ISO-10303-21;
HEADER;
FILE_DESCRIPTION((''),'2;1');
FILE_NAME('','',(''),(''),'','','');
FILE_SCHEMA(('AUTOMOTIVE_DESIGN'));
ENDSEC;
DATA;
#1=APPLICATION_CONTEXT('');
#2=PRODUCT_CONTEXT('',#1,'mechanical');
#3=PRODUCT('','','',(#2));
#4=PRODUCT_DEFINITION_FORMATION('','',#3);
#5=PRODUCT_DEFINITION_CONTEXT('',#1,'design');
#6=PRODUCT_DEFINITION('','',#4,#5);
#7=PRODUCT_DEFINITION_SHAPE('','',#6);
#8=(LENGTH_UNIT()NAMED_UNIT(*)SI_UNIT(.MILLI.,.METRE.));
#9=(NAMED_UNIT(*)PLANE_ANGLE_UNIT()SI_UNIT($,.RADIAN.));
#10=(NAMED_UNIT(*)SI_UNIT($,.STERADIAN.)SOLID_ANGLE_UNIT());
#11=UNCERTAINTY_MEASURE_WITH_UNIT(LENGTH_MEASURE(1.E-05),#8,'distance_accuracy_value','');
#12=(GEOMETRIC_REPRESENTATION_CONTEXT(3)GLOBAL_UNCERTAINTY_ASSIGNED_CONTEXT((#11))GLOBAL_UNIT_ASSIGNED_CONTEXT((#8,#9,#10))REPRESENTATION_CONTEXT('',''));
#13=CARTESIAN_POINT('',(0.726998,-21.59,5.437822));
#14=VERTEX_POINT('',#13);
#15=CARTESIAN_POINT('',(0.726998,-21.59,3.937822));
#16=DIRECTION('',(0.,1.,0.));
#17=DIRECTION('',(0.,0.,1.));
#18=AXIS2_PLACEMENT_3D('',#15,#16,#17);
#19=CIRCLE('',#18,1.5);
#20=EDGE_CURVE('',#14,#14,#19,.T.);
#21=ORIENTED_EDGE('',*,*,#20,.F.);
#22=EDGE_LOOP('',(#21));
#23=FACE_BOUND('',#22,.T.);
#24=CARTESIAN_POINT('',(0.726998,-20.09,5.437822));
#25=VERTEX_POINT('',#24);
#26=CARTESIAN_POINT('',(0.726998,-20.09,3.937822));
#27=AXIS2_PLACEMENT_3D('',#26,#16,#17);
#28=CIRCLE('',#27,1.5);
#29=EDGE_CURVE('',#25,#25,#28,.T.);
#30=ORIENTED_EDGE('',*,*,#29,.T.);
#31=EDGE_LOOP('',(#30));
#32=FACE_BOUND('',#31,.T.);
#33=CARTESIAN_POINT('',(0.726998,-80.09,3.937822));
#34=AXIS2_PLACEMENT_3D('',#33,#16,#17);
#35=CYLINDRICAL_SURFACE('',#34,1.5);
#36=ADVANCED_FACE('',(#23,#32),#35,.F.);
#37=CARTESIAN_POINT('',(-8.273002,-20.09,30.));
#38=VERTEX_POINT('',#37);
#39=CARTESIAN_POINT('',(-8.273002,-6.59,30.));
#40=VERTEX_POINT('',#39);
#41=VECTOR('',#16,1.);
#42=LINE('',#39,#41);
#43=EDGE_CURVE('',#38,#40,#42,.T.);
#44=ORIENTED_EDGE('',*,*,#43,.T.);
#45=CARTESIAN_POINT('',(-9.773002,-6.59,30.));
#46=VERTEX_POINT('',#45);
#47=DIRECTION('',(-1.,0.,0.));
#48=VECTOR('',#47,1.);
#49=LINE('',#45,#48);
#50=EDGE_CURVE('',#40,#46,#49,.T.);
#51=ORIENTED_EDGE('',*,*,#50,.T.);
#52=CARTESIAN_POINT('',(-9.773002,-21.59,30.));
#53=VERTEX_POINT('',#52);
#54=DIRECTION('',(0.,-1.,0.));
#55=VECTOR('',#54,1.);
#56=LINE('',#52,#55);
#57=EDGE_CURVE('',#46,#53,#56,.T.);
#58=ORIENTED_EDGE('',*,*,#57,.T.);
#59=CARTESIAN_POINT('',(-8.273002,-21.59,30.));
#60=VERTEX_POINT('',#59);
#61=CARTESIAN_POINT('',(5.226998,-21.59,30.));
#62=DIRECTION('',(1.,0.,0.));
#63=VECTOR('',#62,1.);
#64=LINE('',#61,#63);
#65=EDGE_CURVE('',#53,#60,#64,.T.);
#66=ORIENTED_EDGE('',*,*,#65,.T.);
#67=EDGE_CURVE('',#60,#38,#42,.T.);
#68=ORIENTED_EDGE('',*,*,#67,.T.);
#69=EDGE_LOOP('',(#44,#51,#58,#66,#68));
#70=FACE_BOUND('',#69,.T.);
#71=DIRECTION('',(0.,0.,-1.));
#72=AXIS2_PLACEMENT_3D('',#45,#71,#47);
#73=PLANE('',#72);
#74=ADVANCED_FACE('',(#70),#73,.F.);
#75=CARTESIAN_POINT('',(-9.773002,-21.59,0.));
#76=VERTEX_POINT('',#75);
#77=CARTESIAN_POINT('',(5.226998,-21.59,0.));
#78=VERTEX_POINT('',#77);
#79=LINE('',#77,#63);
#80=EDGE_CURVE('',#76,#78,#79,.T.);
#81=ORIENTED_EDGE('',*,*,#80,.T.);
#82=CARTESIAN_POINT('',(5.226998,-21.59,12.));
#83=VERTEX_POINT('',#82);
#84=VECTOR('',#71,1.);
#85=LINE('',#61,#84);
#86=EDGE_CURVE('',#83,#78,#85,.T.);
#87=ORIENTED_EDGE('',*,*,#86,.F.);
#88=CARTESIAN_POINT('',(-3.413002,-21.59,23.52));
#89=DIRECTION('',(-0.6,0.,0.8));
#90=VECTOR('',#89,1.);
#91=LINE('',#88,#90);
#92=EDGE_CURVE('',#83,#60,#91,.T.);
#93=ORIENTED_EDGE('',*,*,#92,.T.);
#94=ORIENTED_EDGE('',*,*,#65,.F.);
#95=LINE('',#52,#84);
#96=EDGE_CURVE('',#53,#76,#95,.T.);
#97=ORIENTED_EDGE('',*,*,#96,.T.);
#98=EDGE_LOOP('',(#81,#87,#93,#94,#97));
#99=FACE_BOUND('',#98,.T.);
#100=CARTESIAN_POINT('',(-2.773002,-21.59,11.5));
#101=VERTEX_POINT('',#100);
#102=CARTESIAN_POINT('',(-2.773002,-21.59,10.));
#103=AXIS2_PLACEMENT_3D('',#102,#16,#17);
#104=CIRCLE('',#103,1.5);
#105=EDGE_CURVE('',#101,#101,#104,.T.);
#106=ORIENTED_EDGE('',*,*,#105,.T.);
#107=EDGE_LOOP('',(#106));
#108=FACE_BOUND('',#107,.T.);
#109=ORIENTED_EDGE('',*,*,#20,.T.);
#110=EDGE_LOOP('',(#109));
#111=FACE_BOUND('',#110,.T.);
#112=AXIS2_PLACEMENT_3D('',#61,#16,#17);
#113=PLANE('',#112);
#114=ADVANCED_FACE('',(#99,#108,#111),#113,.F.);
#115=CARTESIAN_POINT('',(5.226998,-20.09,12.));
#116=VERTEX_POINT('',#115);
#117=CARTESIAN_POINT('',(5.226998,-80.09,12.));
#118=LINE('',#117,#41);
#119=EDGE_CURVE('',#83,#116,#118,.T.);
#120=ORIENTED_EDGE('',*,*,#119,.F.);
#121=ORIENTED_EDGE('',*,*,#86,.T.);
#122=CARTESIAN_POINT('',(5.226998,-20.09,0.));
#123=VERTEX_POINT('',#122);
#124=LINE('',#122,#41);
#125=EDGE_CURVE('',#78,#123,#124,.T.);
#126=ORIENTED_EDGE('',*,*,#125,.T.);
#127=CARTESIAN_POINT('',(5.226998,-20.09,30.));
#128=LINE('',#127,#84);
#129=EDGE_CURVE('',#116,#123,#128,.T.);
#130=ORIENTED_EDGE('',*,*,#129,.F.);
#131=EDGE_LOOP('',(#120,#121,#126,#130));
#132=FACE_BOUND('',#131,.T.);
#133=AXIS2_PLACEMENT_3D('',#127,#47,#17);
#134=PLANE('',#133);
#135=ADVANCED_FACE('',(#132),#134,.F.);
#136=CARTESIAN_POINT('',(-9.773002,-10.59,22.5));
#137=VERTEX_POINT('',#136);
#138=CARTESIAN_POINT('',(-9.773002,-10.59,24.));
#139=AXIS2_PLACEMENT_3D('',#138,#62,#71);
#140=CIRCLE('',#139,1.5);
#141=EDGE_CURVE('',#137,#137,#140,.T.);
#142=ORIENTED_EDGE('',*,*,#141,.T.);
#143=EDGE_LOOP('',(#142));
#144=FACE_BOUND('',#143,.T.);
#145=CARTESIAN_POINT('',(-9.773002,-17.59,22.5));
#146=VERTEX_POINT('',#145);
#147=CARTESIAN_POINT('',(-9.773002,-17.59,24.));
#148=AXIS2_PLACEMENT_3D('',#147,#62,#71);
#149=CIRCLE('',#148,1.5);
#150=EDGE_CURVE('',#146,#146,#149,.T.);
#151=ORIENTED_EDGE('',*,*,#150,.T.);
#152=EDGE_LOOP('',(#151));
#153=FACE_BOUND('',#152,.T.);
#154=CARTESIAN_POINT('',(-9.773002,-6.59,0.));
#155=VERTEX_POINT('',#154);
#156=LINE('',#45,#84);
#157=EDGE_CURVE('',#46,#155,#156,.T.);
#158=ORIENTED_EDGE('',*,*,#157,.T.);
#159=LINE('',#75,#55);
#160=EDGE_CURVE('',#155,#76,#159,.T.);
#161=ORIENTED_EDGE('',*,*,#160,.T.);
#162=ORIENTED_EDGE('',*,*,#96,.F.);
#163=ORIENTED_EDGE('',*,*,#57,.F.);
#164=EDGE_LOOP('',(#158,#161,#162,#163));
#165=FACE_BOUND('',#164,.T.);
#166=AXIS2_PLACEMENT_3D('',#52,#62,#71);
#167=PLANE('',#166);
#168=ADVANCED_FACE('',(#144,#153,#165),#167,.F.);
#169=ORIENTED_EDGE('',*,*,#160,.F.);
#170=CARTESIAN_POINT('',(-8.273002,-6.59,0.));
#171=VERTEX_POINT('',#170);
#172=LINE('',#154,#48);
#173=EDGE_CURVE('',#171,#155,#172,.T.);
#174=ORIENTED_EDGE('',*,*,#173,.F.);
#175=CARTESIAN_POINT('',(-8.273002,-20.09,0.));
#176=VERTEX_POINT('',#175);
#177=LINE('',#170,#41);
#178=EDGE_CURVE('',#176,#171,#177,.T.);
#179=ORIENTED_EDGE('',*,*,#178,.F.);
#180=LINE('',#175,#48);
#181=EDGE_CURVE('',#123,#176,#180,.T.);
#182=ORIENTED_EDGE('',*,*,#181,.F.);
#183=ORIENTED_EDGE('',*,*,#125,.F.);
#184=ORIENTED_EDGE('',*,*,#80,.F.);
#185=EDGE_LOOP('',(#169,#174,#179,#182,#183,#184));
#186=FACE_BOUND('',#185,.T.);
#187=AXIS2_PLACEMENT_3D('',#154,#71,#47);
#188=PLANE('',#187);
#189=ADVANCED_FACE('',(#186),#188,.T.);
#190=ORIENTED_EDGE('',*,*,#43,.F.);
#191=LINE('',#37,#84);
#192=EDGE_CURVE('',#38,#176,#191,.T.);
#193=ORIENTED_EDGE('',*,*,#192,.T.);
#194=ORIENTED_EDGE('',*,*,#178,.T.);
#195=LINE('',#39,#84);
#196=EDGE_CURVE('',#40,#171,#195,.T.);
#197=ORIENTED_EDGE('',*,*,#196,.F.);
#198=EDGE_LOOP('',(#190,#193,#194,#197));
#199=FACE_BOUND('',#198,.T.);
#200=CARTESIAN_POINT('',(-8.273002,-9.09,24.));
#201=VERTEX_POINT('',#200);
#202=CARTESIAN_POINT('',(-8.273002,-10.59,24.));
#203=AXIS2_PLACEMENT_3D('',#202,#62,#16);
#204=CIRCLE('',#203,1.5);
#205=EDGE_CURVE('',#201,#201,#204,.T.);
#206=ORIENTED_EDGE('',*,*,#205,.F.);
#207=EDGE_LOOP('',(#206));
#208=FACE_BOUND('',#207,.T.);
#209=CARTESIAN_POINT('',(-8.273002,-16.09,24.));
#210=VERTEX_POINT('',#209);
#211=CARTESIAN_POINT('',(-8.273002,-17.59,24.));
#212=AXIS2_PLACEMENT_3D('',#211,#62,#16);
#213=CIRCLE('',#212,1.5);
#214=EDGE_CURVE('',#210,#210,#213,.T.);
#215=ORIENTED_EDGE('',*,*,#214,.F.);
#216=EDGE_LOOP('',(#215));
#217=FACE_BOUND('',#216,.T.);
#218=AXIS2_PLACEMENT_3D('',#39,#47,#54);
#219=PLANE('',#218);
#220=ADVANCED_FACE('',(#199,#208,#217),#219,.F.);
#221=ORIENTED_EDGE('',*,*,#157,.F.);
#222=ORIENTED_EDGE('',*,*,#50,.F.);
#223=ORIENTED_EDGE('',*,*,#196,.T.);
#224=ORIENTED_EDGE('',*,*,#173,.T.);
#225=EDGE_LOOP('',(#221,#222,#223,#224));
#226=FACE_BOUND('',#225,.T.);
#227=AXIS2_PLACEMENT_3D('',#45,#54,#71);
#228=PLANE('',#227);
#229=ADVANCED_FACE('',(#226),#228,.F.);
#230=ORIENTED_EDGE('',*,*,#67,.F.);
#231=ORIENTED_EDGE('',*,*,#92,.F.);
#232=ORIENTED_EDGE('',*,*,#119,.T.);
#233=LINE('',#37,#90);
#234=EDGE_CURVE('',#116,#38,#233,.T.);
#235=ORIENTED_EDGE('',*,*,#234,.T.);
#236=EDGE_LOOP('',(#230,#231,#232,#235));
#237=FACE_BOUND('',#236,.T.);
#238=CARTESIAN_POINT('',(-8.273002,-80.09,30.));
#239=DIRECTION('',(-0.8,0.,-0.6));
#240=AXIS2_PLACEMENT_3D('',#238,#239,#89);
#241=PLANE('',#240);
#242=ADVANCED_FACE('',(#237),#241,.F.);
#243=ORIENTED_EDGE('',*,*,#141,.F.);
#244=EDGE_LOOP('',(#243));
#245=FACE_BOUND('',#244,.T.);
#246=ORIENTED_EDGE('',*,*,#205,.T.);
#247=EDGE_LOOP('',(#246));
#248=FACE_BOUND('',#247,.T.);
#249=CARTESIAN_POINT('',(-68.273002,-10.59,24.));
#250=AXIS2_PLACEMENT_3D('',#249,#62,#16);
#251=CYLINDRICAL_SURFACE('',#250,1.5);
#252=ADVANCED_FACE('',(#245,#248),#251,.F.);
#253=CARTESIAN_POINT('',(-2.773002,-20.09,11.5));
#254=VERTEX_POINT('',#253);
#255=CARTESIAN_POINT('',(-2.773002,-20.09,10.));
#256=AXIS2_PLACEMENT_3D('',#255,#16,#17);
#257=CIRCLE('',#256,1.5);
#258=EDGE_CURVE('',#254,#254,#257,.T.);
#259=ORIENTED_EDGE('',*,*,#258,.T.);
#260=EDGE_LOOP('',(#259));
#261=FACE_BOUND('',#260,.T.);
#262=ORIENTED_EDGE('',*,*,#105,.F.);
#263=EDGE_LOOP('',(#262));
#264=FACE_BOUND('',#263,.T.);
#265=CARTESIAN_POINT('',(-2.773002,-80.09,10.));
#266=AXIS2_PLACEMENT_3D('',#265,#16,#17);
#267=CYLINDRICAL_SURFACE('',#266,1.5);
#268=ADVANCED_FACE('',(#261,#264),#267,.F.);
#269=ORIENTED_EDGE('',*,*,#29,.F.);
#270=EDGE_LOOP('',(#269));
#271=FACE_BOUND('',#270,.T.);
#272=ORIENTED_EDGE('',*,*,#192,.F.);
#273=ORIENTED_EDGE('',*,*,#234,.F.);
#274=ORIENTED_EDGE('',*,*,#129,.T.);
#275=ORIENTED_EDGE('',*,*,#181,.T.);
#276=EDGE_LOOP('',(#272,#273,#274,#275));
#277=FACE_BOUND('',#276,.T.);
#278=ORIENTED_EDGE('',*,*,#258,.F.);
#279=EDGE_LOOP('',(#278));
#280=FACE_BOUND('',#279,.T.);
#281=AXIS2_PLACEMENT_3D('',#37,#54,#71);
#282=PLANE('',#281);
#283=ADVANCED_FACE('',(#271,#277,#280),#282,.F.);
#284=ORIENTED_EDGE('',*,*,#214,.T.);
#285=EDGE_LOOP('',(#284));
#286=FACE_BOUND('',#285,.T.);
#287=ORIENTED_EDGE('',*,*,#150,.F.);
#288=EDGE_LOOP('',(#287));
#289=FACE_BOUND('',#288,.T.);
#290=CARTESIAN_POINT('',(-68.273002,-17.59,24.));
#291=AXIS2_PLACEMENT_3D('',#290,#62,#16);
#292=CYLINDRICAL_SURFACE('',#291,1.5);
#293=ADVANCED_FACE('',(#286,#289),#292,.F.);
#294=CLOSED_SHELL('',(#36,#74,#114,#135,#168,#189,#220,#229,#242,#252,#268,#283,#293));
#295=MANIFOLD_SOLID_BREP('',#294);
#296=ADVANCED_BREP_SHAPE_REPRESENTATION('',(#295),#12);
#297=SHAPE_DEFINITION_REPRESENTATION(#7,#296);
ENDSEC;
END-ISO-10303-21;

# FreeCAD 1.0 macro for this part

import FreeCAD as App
import Part
import Sketcher


def add_polygon(sketch, points):
    """Adds a closed chain of lines whose ends are joined by coincident constraints."""
    first, n = sketch.GeometryCount, len(points)
    for a, b in zip(points, points[1:] + points[:1]):
        sketch.addGeometry(Part.LineSegment(App.Vector(*a, 0), App.Vector(*b, 0)), False)
    for i in range(n):
        sketch.addConstraint(Sketcher.Constraint("Coincident", first + i, 2, first + (i + 1) % n, 1))

doc = App.newDocument("Part")
params = doc.addObject("Spreadsheet::Sheet", "Params")
for row, (alias, value) in enumerate([
    ("sketch1_width", "15 mm"),
    ("sketch1_width2", "1.5 mm"),
    ("pad1_length", "30 mm"),
    ("sketch2_diameter", "3 mm"),
    ("pocket1_length", "60 mm"),
    ("sketch3_diameter", "3 mm"),
    ("sketch3_height", "18 mm"),
    ("sketch3_width", "13.5 mm"),
    ("pocket2_length", "60 mm"),
], start=1):
    params.set(f"A{row}", alias)
    params.set(f"B{row}", "=" + value)
    params.setAlias(f"B{row}", alias)

body = doc.addObject("PartDesign::Body", "Body")

# Sketch on XY plane
sketch1 = body.newObject("Sketcher::SketchObject", "Sketch")
sketch1.AttachmentSupport = (doc.getObject("XY_Plane"), [""])
sketch1.MapMode = "FlatFace"
add_polygon(sketch1, [(-8.3, -6.6), (-9.8, -6.6), (-9.8, -21.6), (5.2, -21.6), (5.2, -20.1), (-8.3, -20.1)])  # lines 0-5
sketch1.addConstraint([
    Sketcher.Constraint("Horizontal", 0),
    Sketcher.Constraint("Vertical", 1),
    Sketcher.Constraint("Horizontal", 2),
    Sketcher.Constraint("Vertical", 3),
    Sketcher.Constraint("Horizontal", 4),
    Sketcher.Constraint("Vertical", 5),
    Sketcher.Constraint("Equal", 2, 1),
    Sketcher.Constraint("Equal", 0, 3),
    Sketcher.Constraint("DistanceX", 2, 1, 2, 2, 15.0),
    Sketcher.Constraint("DistanceX", 0, 2, 0, 1, 1.5),
    Sketcher.Constraint("DistanceY", 0, 2, -1, 1, 6.59),
    Sketcher.Constraint("DistanceX", 0, 2, -1, 1, 9.773002),
])
sketch1.setExpression("Constraints[14]", "Params.sketch1_width")
sketch1.setExpression("Constraints[15]", "Params.sketch1_width2")
pad1 = body.newObject("PartDesign::Pad", "Pad")
pad1.Profile = sketch1
pad1.setExpression("Length", "Params.pad1_length")

# Sketch on YZ plane
sketch2 = body.newObject("Sketcher::SketchObject", "Sketch001")
sketch2.AttachmentSupport = (doc.getObject("YZ_Plane"), [""])
sketch2.MapMode = "FlatFace"
sketch2.AttachmentOffset = App.Placement(App.Vector(0, 0, -8.273002), App.Rotation())
sketch2.addGeometry([
    Part.Circle(App.Vector(-10.6, 24, 0), App.Vector(0, 0, 1), 1.5),
    Part.Circle(App.Vector(-17.6, 24, 0), App.Vector(0, 0, 1), 1.5),
], False)
sketch2.addConstraint([
    Sketcher.Constraint("Equal", 0, 1),
    Sketcher.Constraint("Horizontal", 0, 3, 1, 3),
    Sketcher.Constraint("Diameter", 0, 3.0),
    Sketcher.Constraint("DistanceY", -1, 1, 0, 3, 24.0),
    Sketcher.Constraint("DistanceX", 1, 3, 0, 3, 7.0),
    Sketcher.Constraint("DistanceX", 0, 3, -1, 1, 10.59),
])
sketch2.setExpression("Constraints[2]", "Params.sketch2_diameter")
pocket1 = body.newObject("PartDesign::Pocket", "Pocket")
pocket1.Profile = sketch2
pocket1.setExpression("Length", "Params.pocket1_length")

# Sketch on XZ plane
sketch3 = body.newObject("Sketcher::SketchObject", "Sketch002")
sketch3.AttachmentSupport = (doc.getObject("XZ_Plane"), [""])
sketch3.MapMode = "FlatFace"
sketch3.AttachmentOffset = App.Placement(App.Vector(0, 0, 20.09), App.Rotation())
sketch3.addGeometry(Part.Circle(App.Vector(-2.8, 10, 0), App.Vector(0, 0, 1), 1.5), False)  # 0
sketch3.addGeometry(Part.Circle(App.Vector(0.7, 3.9, 0), App.Vector(0, 0, 1), 1.5), False)  # 1
add_polygon(sketch3, [(-8.3, 30), (5.2, 30), (5.2, 12)])  # lines 2-4
sketch3.addConstraint([
    Sketcher.Constraint("Horizontal", 2),
    Sketcher.Constraint("Vertical", 3),
    Sketcher.Constraint("Equal", 0, 1),
    Sketcher.Constraint("Diameter", 0, 3.0),
    Sketcher.Constraint("DistanceY", 3, 2, 3, 1, 18.0),
    Sketcher.Constraint("DistanceX", 2, 1, 2, 2, 13.5),
    Sketcher.Constraint("DistanceY", -1, 1, 0, 3, 10.0),
    Sketcher.Constraint("DistanceY", -1, 1, 2, 2, 30.0),
    Sketcher.Constraint("DistanceX", 0, 3, 2, 2, 8.0),
    Sketcher.Constraint("DistanceX", 4, 2, 1, 3, 9.0),
    Sketcher.Constraint("DistanceX", 0, 3, -1, 1, 2.773002),
    Sketcher.Constraint("DistanceY", -1, 1, 1, 3, 3.937822),
])
sketch3.setExpression("Constraints[6]", "Params.sketch3_diameter")
sketch3.setExpression("Constraints[7]", "Params.sketch3_height")
sketch3.setExpression("Constraints[8]", "Params.sketch3_width")
pocket2 = body.newObject("PartDesign::Pocket", "Pocket001")
pocket2.Profile = sketch3
pocket2.setExpression("Length", "Params.pocket2_length")
pocket2.Reversed = True

doc.recompute()
